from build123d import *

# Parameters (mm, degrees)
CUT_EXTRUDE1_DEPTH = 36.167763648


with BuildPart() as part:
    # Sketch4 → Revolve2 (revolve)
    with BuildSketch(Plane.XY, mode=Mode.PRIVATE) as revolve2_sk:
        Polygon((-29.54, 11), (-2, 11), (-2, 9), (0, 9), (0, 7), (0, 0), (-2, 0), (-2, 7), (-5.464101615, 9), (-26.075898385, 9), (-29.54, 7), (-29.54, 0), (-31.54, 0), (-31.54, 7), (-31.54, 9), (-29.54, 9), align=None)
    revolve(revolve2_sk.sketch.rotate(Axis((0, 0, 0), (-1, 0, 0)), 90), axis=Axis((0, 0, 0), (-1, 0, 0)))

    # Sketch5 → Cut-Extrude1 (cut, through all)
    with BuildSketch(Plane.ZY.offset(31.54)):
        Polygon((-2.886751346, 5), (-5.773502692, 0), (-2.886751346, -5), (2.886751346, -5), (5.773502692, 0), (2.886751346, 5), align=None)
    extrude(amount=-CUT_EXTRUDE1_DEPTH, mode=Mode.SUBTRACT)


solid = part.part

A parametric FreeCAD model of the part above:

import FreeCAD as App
import Part
import Sketcher
Q = App.Units.Quantity


def add_polygon(sketch, points):
    """Adds a closed chain of lines whose ends are joined by coincident constraints."""
    first, n = sketch.GeometryCount, len(points)
    for a, b in zip(points, points[1:] + points[:1]):
        sketch.addGeometry(Part.LineSegment(App.Vector(*a, 0), App.Vector(*b, 0)), False)
    for i in range(n):
        sketch.addConstraint(Sketcher.Constraint("Coincident", first + i, 2, first + (i + 1) % n, 1))

doc = App.newDocument("Part")
body = doc.addObject("PartDesign::Body", "Body")

sketch1 = doc.addObject("Sketcher::SketchObject", "Sketch")
body.addObject(sketch1)
sketch1.AttachmentSupport = (doc.XY_Plane, [""])
sketch1.MapMode = "FlatFace"
add_polygon(sketch1, [(-2, 11), (-29.5, 11), (-29.5, 9), (-31.5, 9), (-31.5, 0), (-29.5, 0), (-29.5, 7), (-26.1, 9), (-5.5, 9), (-2, 7), (-2, 0), (0, 0), (0, 9), (-2, 9)])
sketch1.addConstraint([
    Sketcher.Constraint("Horizontal", 0),
    Sketcher.Constraint("Vertical", 1),
    Sketcher.Constraint("Horizontal", 2),
    Sketcher.Constraint("Vertical", 3),
    Sketcher.Constraint("Horizontal", 4),
    Sketcher.Constraint("Vertical", 5),
    Sketcher.Constraint("Horizontal", 7),
    Sketcher.Constraint("Vertical", 9),
    Sketcher.Constraint("Horizontal", 10),
    Sketcher.Constraint("Vertical", 11),
    Sketcher.Constraint("Horizontal", 12),
    Sketcher.Constraint("Vertical", 13),
    Sketcher.Constraint("Coincident", 10, 2, -1, 1),
    Sketcher.Constraint("PointOnObject", 3, 2, -1),
    Sketcher.Constraint("Horizontal", 2, 2, 6, 2),
    Sketcher.Constraint("Horizontal", 5, 2, 8, 2),
    Sketcher.Constraint("Horizontal", 7, 2, 11, 2),
    Sketcher.Constraint("Vertical", 1, 2, 4, 2),
    Sketcher.Constraint("Vertical", 9, 2, 12, 2),
    Sketcher.Constraint("Equal", 4, 10),
    Sketcher.Constraint("Equal", 12, 1),
    Sketcher.Constraint("Equal", 6, 8),
    Sketcher.Constraint("DistanceX", 2, 2, 2, 1, 2.0),
    Sketcher.Constraint("DistanceY", 3, 2, 3, 1, 9.0),
    Sketcher.Constraint("DistanceY", 5, 1, 5, 2, 7.0),
    Sketcher.Constraint("Angle", 6, Q("30 deg")),
    Sketcher.Constraint("DistanceX", 0, 2, 0, 1, 27.54),
])
revolution = doc.addObject("PartDesign::Revolution", "Revolution")
body.addObject(revolution)
revolution.Profile = sketch1
revolution.ReferenceAxis = (sketch1, ["H_Axis"])
revolution.Angle = 360

sketch2 = doc.addObject("Sketcher::SketchObject", "Sketch001")
body.addObject(sketch2)
sketch2.AttachmentSupport = (doc.YZ_Plane, [""])
sketch2.MapMode = "FlatFace"
sketch2.AttachmentOffset = App.Placement(App.Vector(0, 0, -31.54), App.Rotation())
add_polygon(sketch2, [(5, -3), (0, -6), (-5, -3), (-5, 3), (0, 6), (5, 3)])
sketch2.addConstraint([
    Sketcher.Constraint("Vertical", 2),
    Sketcher.Constraint("Vertical", 5),
    Sketcher.Constraint("Symmetric", 0, 2, 3, 2, -1, 1),
    Sketcher.Constraint("Symmetric", 1, 2, 4, 2, -1, 1),
    Sketcher.Constraint("PointOnObject", 0, 2, -2),
    Sketcher.Constraint("Parallel", 0, 3),
    Sketcher.Constraint("Horizontal", 2, 2, 4, 2),
    Sketcher.Constraint("Angle", 0, Q("-150 deg")),
    Sketcher.Constraint("DistanceX", 1, 2, -1, 1, 5.0),
    Sketcher.Constraint("DistanceY", 2, 1, 2, 2, 5.773503),
])
pocket1 = doc.addObject("PartDesign::Pocket", "Pocket")
body.addObject(pocket1)
pocket1.Profile = sketch2
pocket1.Type = "ThroughAll"
pocket1.Reversed = True

doc.recompute()
